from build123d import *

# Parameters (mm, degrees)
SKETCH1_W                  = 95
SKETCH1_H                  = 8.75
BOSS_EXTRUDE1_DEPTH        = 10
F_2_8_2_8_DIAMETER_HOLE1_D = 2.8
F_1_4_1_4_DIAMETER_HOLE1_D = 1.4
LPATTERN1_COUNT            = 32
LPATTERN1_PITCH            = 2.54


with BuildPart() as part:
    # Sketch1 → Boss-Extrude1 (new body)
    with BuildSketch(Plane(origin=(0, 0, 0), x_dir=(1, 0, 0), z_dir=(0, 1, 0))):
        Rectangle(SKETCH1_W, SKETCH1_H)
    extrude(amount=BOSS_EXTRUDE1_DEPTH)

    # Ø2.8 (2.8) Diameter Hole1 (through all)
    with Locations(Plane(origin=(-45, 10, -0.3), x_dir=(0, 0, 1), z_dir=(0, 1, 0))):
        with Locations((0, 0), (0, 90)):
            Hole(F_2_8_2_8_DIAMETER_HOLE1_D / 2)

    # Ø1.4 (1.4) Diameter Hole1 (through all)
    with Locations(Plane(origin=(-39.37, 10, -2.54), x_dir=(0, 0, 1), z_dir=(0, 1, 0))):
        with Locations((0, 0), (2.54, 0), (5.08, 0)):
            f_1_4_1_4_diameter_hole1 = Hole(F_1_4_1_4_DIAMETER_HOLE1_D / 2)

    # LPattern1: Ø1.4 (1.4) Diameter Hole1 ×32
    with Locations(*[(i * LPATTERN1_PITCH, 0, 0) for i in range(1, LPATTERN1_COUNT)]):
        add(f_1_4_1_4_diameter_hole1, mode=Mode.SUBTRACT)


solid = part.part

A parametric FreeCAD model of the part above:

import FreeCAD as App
import Part
import Sketcher
Q = App.Units.Quantity

doc = App.newDocument("Part")
body = doc.addObject("PartDesign::Body", "Body")

# Sketch on XZ plane
sketch1 = body.newObject("Sketcher::SketchObject", "Sketch")
sketch1.AttachmentSupport = (doc.getObject("XZ_Plane"), [""])
sketch1.MapMode = "FlatFace"
sketch1.addGeometry([
    Part.LineSegment(App.Vector(-48, -4, 0), App.Vector(-48, 4, 0)),
    Part.LineSegment(App.Vector(-48, 4, 0), App.Vector(48, 4, 0)),
    Part.LineSegment(App.Vector(48, 4, 0), App.Vector(48, -4, 0)),
    Part.LineSegment(App.Vector(48, -4, 0), App.Vector(-48, -4, 0)),
], False)
sketch1.addConstraint([
    Sketcher.Constraint("Coincident", 0, 2, 1, 1),
    Sketcher.Constraint("Coincident", 1, 2, 2, 1),
    Sketcher.Constraint("Coincident", 2, 2, 3, 1),
    Sketcher.Constraint("Coincident", 3, 2, 0, 1),
    Sketcher.Constraint("Vertical", 0),
    Sketcher.Constraint("Horizontal", 1),
    Sketcher.Constraint("Vertical", 2),
    Sketcher.Constraint("Horizontal", 3),
    Sketcher.Constraint("Symmetric", 0, 2, 2, 2, -1, 1),
    Sketcher.Constraint("DistanceX", 1, 1, 1, 2, Q("95 mm")),
    Sketcher.Constraint("DistanceY", 0, 1, 0, 2, Q("8.75 mm")),
])
pad1 = body.newObject("PartDesign::Pad", "Pad")
pad1.Profile = sketch1
pad1.Length = 10
pad1.Reversed = True

# Sketch on XZ plane
sketch2 = body.newObject("Sketcher::SketchObject", "Sketch001")
sketch2.AttachmentSupport = (doc.getObject("XZ_Plane"), [""])
sketch2.MapMode = "FlatFace"
sketch2.AttachmentOffset = App.Placement(App.Vector(0, 0, -10), App.Rotation())
sketch2.addGeometry([
    Part.Circle(App.Vector(-45, -0.3, 0), App.Vector(0, 0, 1), 1.4),
    Part.Circle(App.Vector(45, -0.3, 0), App.Vector(0, 0, 1), 1.4),
], False)
sketch2.addConstraint([
    Sketcher.Constraint("Equal", 0, 1),
    Sketcher.Constraint("Symmetric", 0, 3, 1, 3, -2),
    Sketcher.Constraint("Diameter", 0, Q("2.8 mm")),
    Sketcher.Constraint("DistanceX", 0, 3, -1, 1, Q("45 mm")),
    Sketcher.Constraint("DistanceY", 0, 3, -1, 1, Q("0.3 mm")),
])
doc.recompute()
hole = body.newObject("PartDesign::Hole", "Hole")
hole.Profile = sketch2
hole.ThreadType = "None"
hole.Diameter = 2.8
hole.DepthType = "ThroughAll"
hole.Reversed = True

# Sketch on XZ plane
sketch3 = body.newObject("Sketcher::SketchObject", "Sketch002")
sketch3.AttachmentSupport = (doc.getObject("XZ_Plane"), [""])
sketch3.MapMode = "FlatFace"
sketch3.AttachmentOffset = App.Placement(App.Vector(0, 0, -10), App.Rotation())
sketch3.addGeometry([
    Part.Circle(App.Vector(-39.4, -2.5, 0), App.Vector(0, 0, 1), 0.7),
    Part.Circle(App.Vector(-39.4, 0, 0), App.Vector(0, 0, 1), 0.7),
    Part.Circle(App.Vector(-39.4, 2.5, 0), App.Vector(0, 0, 1), 0.7),
], False)
sketch3.addConstraint([
    Sketcher.Constraint("Equal", 0, 1),
    Sketcher.Constraint("Equal", 1, 2),
    Sketcher.Constraint("Symmetric", 0, 3, 2, 3, -1),
    Sketcher.Constraint("PointOnObject", 1, 3, -1),
    Sketcher.Constraint("Vertical", 0, 3, 1, 3),
    Sketcher.Constraint("Diameter", 0, Q("1.4 mm")),
    Sketcher.Constraint("DistanceX", 0, 3, -1, 1, Q("39.37 mm")),
    Sketcher.Constraint("DistanceY", 0, 3, -1, 1, Q("2.54 mm")),
])
doc.recompute()
hole2 = body.newObject("PartDesign::Hole", "Hole001")
hole2.Profile = sketch3
hole2.ThreadType = "None"
hole2.Diameter = 1.4
hole2.DepthType = "ThroughAll"
hole2.Reversed = True
doc.recompute()

linearpattern = body.newObject("PartDesign::LinearPattern", "LinearPattern")
linearpattern.Originals = [hole2]
linearpattern.Direction = (doc.getObject("X_Axis"), [""])
linearpattern.Mode = "offset"
linearpattern.Offset = 2.54
linearpattern.Occurrences = 32
body.Tip = linearpattern

doc.recompute()
